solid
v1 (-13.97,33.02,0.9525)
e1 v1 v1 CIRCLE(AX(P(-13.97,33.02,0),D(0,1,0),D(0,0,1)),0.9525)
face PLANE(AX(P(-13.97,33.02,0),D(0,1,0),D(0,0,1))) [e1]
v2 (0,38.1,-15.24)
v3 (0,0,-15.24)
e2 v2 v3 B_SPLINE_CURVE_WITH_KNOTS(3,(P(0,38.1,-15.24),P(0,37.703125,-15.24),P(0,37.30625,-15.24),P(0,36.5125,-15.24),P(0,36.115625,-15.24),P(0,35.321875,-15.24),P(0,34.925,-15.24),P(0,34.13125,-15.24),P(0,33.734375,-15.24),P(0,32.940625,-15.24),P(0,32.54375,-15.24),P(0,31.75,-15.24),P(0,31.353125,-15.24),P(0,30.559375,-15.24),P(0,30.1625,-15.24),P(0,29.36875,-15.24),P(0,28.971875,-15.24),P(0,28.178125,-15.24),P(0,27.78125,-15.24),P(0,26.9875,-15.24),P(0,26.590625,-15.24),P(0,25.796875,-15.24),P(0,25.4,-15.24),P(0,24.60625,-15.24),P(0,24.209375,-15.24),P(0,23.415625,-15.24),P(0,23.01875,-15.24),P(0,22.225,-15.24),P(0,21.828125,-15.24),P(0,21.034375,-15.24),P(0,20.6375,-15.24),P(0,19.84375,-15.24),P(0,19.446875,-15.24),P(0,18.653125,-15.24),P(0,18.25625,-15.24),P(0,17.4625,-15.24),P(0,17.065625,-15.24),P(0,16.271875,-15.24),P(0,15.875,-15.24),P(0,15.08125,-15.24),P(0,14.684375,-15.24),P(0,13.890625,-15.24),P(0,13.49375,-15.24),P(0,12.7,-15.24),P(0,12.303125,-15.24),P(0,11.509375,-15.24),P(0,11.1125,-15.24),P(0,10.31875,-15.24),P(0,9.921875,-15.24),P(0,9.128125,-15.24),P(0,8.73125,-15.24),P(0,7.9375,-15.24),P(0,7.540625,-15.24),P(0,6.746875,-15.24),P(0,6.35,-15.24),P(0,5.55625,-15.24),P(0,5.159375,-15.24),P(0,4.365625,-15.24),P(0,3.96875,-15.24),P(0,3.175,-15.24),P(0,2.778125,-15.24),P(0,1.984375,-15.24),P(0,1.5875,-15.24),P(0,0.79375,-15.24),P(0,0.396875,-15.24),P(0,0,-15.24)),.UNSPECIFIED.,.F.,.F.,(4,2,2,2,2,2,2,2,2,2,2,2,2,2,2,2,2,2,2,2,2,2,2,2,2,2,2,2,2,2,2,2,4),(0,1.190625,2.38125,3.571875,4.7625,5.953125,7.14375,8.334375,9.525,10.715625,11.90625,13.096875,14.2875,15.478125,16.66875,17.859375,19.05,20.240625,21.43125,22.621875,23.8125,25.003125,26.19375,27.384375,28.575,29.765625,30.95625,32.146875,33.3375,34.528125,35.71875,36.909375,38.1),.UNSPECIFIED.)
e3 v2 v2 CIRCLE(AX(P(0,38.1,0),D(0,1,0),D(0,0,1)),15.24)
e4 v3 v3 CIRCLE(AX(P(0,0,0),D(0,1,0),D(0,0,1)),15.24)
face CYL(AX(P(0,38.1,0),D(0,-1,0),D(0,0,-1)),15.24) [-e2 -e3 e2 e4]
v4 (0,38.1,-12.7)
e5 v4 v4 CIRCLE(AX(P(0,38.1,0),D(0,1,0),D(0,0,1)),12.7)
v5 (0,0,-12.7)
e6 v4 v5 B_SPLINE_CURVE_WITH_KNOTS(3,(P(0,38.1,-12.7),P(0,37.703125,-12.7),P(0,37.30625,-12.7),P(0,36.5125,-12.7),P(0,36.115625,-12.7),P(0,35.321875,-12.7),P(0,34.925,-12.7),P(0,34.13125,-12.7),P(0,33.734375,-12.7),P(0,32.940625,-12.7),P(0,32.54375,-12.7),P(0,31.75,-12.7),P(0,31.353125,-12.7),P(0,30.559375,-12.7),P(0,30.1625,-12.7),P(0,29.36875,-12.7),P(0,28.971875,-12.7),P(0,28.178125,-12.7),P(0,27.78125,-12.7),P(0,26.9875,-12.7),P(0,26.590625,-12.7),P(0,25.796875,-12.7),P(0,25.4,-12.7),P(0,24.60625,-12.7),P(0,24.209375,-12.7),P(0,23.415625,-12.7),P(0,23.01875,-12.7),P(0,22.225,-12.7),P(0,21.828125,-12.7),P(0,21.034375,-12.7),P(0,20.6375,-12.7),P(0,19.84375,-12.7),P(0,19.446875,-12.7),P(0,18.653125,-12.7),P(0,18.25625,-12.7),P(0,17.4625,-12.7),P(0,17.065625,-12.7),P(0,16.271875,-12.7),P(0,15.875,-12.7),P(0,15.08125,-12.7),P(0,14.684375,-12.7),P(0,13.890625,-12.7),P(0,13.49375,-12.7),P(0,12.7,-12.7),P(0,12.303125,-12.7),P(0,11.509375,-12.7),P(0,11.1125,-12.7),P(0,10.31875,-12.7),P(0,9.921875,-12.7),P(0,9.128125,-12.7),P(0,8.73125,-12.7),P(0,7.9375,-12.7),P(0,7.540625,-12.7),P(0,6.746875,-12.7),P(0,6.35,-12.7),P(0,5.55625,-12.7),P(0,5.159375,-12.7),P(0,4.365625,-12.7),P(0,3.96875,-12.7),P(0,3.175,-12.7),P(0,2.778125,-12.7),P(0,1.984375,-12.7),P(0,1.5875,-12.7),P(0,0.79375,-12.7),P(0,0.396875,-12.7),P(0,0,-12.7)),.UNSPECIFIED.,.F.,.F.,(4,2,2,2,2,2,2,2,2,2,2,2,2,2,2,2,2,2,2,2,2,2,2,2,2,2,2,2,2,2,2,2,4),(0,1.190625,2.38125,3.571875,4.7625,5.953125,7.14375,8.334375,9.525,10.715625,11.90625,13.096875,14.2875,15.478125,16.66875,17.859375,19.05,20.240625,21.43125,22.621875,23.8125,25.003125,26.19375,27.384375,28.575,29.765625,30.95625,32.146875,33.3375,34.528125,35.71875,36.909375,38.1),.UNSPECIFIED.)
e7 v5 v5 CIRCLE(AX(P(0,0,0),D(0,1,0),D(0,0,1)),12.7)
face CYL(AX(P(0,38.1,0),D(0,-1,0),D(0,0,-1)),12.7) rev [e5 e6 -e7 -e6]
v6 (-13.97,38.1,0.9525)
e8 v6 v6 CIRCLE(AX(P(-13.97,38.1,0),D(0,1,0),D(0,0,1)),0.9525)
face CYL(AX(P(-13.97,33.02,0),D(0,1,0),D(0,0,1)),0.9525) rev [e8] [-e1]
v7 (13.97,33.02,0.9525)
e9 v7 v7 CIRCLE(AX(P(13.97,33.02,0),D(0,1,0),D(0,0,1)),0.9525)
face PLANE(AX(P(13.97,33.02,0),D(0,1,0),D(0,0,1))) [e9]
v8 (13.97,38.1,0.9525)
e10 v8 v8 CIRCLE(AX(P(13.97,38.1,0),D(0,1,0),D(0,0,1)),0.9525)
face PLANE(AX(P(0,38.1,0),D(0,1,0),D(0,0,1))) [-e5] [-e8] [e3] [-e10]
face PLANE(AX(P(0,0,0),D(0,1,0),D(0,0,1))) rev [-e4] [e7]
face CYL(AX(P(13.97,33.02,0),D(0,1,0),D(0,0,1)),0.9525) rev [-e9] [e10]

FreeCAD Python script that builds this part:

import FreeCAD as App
import Part
import Sketcher
from FreeCAD import Vector
Q = App.Units.Quantity

doc = App.newDocument("Part")
body = doc.addObject("PartDesign::Body", "Body")

sketch1 = body.newObject("Sketcher::SketchObject", "Sketch")
sketch1.AttachmentSupport = (doc.getObject("XZ_Plane"), [""])
sketch1.MapMode = "FlatFace"
sketch1.addGeometry([
    Part.Circle(Vector(0, 0, 0), Vector(0, 0, 1), 15.24),
    Part.Circle(Vector(0, 0, 0), Vector(0, 0, 1), 12.7),
], False)
sketch1.addConstraint([
    Sketcher.Constraint("Coincident", 0, 3, -1, 1),
    Sketcher.Constraint("Coincident", 1, 3, -1, 1),
    Sketcher.Constraint("Diameter", 1, Q("1 in")),
    Sketcher.Constraint("Diameter", 0, Q("1.2 in")),
])
pad1 = body.newObject("PartDesign::Pad", "Pad")
pad1.Profile = sketch1
pad1.Length = Q("1.5 in")
pad1.Reversed = True

sketch2 = body.newObject("Sketcher::SketchObject", "Sketch001")
sketch2.AttachmentSupport = (doc.getObject("XZ_Plane"), [""])
sketch2.MapMode = "FlatFace"
sketch2.AttachmentOffset = App.Placement(Vector(0, 0, -1.5 * 25.4), App.Rotation())
sketch2.addGeometry([
    Part.Circle(Vector(-13.97, 0, 0), Vector(0, 0, 1), 0.9525),
    Part.Circle(Vector(13.97, 0, 0), Vector(0, 0, 1), 0.9525),
], False)
sketch2.addConstraint([
    Sketcher.Constraint("Equal", 0, 1),
    Sketcher.Constraint("Symmetric", 0, 3, 1, 3, -1, 1),
    Sketcher.Constraint("PointOnObject", 0, 3, -1),
    Sketcher.Constraint("Diameter", 0, Q("0.075 in")),
    Sketcher.Constraint("DistanceX", 0, 3, 1, 3, Q("1.1 in")),
])
pocket1 = body.newObject("PartDesign::Pocket", "Pocket")
pocket1.Profile = sketch2
pocket1.Length = Q("0.2 in")
pocket1.Reversed = True

doc.recompute()
